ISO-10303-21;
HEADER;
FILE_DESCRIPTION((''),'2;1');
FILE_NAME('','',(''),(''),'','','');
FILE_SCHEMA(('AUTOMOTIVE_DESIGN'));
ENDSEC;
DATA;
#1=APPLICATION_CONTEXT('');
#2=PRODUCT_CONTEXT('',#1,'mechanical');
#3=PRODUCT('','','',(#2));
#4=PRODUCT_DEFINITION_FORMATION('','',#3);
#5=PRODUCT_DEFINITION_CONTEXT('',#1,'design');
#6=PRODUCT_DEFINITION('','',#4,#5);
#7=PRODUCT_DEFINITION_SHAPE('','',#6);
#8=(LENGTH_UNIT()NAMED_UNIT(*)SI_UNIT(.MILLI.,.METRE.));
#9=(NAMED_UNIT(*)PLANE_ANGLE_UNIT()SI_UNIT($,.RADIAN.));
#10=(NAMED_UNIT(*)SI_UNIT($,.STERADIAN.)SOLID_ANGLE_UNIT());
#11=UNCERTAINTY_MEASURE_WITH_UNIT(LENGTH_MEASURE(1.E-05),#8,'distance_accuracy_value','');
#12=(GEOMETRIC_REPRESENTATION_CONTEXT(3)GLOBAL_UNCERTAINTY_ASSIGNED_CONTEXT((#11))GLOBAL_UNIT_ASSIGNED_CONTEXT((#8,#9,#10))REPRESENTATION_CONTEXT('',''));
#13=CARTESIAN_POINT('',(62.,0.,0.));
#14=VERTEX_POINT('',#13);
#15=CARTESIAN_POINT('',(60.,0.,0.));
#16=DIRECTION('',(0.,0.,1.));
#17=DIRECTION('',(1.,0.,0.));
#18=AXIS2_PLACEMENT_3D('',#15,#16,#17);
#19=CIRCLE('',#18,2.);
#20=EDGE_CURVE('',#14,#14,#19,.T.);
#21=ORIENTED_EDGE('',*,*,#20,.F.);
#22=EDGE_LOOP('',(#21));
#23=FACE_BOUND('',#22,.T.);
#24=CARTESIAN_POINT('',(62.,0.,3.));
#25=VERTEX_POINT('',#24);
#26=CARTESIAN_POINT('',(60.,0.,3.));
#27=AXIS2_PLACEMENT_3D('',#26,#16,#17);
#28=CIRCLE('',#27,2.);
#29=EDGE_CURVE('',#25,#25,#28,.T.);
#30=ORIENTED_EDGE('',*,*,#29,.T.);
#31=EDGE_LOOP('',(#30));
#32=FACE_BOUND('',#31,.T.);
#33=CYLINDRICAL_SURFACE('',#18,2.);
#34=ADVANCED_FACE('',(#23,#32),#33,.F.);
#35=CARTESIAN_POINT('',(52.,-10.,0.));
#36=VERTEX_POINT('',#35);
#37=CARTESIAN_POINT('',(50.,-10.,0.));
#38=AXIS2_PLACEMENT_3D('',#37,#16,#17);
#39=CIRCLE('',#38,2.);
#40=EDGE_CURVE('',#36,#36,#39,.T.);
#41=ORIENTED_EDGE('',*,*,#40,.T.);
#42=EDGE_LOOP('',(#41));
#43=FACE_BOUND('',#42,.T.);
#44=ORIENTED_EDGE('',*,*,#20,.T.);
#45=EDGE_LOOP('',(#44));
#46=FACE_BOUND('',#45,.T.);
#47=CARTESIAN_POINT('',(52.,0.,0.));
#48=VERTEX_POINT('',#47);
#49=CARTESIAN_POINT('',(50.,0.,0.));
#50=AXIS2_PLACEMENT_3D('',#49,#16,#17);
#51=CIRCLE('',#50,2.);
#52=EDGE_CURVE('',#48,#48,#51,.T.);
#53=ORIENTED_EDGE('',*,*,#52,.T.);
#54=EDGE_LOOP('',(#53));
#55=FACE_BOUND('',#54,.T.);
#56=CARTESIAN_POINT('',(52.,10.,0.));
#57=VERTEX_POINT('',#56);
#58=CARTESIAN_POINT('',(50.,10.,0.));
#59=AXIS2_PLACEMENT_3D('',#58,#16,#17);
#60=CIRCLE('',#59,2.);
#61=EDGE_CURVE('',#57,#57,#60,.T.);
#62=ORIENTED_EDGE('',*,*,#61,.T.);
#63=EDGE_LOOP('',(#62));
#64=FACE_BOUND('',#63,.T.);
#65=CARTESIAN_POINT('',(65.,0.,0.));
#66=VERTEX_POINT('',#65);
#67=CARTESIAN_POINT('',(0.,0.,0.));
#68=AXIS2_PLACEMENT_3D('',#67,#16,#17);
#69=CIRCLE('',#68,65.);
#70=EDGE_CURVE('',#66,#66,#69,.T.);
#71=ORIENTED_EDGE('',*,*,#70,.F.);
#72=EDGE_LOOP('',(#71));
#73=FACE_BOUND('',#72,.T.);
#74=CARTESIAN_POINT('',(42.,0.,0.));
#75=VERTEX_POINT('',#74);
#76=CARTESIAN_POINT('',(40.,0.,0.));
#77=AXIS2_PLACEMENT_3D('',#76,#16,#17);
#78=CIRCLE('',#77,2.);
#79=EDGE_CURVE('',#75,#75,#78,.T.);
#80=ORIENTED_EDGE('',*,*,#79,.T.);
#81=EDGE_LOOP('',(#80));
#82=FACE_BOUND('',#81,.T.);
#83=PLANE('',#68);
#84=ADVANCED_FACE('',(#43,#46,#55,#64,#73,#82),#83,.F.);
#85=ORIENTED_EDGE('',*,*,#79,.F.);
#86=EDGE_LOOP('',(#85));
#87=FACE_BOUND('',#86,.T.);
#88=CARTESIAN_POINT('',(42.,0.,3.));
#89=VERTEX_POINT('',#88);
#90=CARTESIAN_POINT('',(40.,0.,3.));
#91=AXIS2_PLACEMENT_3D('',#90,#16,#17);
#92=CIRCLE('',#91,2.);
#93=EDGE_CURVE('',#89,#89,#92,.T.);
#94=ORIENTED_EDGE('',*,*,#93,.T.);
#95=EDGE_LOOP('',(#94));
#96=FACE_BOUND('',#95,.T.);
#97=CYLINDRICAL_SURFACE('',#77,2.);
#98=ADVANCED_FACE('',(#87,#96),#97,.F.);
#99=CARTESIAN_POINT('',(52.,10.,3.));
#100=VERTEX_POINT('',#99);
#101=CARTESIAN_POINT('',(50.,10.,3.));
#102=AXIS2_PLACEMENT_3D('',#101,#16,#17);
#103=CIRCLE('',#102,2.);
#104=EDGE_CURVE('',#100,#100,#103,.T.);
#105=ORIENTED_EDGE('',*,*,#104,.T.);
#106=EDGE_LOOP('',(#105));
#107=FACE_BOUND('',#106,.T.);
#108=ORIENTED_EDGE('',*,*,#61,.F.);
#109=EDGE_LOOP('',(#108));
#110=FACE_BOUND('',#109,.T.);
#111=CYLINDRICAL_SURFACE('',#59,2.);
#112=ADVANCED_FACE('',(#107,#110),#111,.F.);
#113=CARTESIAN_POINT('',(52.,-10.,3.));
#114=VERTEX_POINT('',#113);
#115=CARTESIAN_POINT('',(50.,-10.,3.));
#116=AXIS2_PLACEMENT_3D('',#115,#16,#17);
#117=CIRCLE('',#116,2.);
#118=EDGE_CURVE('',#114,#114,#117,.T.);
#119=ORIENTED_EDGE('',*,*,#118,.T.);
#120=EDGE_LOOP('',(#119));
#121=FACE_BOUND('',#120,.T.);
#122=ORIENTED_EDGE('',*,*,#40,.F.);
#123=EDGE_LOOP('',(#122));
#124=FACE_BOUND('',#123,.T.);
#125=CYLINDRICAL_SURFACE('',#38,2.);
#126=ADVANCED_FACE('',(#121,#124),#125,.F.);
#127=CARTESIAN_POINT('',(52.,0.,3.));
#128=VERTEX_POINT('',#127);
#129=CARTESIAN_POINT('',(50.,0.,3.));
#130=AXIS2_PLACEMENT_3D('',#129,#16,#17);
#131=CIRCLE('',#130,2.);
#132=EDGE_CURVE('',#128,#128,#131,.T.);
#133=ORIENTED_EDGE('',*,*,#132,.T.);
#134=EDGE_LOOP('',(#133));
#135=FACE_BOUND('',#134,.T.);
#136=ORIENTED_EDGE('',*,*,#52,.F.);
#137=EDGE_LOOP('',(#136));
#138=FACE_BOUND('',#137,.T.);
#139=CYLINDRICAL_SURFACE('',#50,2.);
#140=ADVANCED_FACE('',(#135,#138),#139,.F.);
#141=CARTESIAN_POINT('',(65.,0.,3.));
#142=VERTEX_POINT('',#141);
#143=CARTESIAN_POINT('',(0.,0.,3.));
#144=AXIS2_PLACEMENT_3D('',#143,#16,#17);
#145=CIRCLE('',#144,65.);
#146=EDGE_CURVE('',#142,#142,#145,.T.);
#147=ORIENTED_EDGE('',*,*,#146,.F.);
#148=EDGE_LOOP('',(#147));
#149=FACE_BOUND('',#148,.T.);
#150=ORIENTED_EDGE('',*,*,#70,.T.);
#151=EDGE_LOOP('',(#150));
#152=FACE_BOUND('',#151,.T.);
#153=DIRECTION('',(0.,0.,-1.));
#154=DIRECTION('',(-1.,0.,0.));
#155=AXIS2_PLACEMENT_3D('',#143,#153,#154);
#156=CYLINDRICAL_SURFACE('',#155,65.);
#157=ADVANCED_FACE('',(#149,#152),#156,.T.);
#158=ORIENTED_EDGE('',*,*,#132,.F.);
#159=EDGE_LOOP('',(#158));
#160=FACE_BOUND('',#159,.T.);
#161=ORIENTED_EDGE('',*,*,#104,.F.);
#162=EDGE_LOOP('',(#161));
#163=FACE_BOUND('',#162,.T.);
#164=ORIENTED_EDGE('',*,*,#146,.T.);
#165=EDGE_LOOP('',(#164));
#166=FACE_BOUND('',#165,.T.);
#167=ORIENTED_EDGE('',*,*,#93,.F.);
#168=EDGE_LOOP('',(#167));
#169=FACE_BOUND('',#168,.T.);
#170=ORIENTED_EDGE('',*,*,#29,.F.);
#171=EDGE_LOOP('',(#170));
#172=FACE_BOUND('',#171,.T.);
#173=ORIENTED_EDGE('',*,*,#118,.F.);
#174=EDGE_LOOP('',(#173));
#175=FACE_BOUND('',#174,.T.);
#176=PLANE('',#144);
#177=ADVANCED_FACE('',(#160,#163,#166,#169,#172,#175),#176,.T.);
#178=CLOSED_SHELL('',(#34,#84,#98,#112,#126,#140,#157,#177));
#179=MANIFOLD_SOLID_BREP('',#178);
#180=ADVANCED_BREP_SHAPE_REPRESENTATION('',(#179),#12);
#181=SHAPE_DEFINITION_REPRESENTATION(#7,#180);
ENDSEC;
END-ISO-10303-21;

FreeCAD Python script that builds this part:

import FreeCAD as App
import Part
import Sketcher
from FreeCAD import Vector
Q = App.Units.Quantity

doc = App.newDocument("Part")
body = doc.addObject("PartDesign::Body", "Body")

sketch1 = body.newObject("Sketcher::SketchObject", "Sketch")
sketch1.AttachmentSupport = (doc.getObject("XY_Plane"), [""])
sketch1.MapMode = "FlatFace"
sketch1.addGeometry(Part.Circle(Vector(0, 0, 0), Vector(0, 0, 1), 65), False)
sketch1.addConstraint([
    Sketcher.Constraint("Coincident", 0, 3, -1, 1),
    Sketcher.Constraint("Diameter", 0, Q("130 mm")),
])
pad1 = body.newObject("PartDesign::Pad", "Pad")
pad1.Profile = sketch1
pad1.Length = 3

sketch2 = body.newObject("Sketcher::SketchObject", "Sketch001")
sketch2.AttachmentSupport = (doc.getObject("XY_Plane"), [""])
sketch2.MapMode = "FlatFace"
sketch2.AttachmentOffset = App.Placement(Vector(0, 0, 3), App.Rotation())
sketch2.addGeometry([
    Part.Circle(Vector(40, 0, 0), Vector(0, 0, 1), 2),
    Part.Circle(Vector(50, -10, 0), Vector(0, 0, 1), 2),
    Part.Circle(Vector(50, 0, 0), Vector(0, 0, 1), 2),
    Part.Circle(Vector(50, 10, 0), Vector(0, 0, 1), 2),
    Part.Circle(Vector(60, 0, 0), Vector(0, 0, 1), 2),
], False)
sketch2.addConstraint([
    Sketcher.Constraint("Equal", 0, 1),
    Sketcher.Constraint("Equal", 1, 2),
    Sketcher.Constraint("Equal", 2, 3),
    Sketcher.Constraint("Equal", 3, 4),
    Sketcher.Constraint("Symmetric", 1, 3, 3, 3, -1),
    Sketcher.Constraint("PointOnObject", 0, 3, -1),
    Sketcher.Constraint("PointOnObject", 2, 3, -1),
    Sketcher.Constraint("PointOnObject", 4, 3, -1),
    Sketcher.Constraint("Vertical", 1, 3, 2, 3),
    Sketcher.Constraint("Diameter", 0, Q("4 mm")),
    Sketcher.Constraint("DistanceX", -1, 1, 0, 3, Q("40 mm")),
    Sketcher.Constraint("DistanceX", -1, 1, 1, 3, Q("50 mm")),
    Sketcher.Constraint("DistanceY", 1, 3, -1, 1, Q("10 mm")),
    Sketcher.Constraint("DistanceX", -1, 1, 4, 3, Q("60 mm")),
])
pocket1 = body.newObject("PartDesign::Pocket", "Pocket")
pocket1.Profile = sketch2
pocket1.Length = 3

doc.recompute()
